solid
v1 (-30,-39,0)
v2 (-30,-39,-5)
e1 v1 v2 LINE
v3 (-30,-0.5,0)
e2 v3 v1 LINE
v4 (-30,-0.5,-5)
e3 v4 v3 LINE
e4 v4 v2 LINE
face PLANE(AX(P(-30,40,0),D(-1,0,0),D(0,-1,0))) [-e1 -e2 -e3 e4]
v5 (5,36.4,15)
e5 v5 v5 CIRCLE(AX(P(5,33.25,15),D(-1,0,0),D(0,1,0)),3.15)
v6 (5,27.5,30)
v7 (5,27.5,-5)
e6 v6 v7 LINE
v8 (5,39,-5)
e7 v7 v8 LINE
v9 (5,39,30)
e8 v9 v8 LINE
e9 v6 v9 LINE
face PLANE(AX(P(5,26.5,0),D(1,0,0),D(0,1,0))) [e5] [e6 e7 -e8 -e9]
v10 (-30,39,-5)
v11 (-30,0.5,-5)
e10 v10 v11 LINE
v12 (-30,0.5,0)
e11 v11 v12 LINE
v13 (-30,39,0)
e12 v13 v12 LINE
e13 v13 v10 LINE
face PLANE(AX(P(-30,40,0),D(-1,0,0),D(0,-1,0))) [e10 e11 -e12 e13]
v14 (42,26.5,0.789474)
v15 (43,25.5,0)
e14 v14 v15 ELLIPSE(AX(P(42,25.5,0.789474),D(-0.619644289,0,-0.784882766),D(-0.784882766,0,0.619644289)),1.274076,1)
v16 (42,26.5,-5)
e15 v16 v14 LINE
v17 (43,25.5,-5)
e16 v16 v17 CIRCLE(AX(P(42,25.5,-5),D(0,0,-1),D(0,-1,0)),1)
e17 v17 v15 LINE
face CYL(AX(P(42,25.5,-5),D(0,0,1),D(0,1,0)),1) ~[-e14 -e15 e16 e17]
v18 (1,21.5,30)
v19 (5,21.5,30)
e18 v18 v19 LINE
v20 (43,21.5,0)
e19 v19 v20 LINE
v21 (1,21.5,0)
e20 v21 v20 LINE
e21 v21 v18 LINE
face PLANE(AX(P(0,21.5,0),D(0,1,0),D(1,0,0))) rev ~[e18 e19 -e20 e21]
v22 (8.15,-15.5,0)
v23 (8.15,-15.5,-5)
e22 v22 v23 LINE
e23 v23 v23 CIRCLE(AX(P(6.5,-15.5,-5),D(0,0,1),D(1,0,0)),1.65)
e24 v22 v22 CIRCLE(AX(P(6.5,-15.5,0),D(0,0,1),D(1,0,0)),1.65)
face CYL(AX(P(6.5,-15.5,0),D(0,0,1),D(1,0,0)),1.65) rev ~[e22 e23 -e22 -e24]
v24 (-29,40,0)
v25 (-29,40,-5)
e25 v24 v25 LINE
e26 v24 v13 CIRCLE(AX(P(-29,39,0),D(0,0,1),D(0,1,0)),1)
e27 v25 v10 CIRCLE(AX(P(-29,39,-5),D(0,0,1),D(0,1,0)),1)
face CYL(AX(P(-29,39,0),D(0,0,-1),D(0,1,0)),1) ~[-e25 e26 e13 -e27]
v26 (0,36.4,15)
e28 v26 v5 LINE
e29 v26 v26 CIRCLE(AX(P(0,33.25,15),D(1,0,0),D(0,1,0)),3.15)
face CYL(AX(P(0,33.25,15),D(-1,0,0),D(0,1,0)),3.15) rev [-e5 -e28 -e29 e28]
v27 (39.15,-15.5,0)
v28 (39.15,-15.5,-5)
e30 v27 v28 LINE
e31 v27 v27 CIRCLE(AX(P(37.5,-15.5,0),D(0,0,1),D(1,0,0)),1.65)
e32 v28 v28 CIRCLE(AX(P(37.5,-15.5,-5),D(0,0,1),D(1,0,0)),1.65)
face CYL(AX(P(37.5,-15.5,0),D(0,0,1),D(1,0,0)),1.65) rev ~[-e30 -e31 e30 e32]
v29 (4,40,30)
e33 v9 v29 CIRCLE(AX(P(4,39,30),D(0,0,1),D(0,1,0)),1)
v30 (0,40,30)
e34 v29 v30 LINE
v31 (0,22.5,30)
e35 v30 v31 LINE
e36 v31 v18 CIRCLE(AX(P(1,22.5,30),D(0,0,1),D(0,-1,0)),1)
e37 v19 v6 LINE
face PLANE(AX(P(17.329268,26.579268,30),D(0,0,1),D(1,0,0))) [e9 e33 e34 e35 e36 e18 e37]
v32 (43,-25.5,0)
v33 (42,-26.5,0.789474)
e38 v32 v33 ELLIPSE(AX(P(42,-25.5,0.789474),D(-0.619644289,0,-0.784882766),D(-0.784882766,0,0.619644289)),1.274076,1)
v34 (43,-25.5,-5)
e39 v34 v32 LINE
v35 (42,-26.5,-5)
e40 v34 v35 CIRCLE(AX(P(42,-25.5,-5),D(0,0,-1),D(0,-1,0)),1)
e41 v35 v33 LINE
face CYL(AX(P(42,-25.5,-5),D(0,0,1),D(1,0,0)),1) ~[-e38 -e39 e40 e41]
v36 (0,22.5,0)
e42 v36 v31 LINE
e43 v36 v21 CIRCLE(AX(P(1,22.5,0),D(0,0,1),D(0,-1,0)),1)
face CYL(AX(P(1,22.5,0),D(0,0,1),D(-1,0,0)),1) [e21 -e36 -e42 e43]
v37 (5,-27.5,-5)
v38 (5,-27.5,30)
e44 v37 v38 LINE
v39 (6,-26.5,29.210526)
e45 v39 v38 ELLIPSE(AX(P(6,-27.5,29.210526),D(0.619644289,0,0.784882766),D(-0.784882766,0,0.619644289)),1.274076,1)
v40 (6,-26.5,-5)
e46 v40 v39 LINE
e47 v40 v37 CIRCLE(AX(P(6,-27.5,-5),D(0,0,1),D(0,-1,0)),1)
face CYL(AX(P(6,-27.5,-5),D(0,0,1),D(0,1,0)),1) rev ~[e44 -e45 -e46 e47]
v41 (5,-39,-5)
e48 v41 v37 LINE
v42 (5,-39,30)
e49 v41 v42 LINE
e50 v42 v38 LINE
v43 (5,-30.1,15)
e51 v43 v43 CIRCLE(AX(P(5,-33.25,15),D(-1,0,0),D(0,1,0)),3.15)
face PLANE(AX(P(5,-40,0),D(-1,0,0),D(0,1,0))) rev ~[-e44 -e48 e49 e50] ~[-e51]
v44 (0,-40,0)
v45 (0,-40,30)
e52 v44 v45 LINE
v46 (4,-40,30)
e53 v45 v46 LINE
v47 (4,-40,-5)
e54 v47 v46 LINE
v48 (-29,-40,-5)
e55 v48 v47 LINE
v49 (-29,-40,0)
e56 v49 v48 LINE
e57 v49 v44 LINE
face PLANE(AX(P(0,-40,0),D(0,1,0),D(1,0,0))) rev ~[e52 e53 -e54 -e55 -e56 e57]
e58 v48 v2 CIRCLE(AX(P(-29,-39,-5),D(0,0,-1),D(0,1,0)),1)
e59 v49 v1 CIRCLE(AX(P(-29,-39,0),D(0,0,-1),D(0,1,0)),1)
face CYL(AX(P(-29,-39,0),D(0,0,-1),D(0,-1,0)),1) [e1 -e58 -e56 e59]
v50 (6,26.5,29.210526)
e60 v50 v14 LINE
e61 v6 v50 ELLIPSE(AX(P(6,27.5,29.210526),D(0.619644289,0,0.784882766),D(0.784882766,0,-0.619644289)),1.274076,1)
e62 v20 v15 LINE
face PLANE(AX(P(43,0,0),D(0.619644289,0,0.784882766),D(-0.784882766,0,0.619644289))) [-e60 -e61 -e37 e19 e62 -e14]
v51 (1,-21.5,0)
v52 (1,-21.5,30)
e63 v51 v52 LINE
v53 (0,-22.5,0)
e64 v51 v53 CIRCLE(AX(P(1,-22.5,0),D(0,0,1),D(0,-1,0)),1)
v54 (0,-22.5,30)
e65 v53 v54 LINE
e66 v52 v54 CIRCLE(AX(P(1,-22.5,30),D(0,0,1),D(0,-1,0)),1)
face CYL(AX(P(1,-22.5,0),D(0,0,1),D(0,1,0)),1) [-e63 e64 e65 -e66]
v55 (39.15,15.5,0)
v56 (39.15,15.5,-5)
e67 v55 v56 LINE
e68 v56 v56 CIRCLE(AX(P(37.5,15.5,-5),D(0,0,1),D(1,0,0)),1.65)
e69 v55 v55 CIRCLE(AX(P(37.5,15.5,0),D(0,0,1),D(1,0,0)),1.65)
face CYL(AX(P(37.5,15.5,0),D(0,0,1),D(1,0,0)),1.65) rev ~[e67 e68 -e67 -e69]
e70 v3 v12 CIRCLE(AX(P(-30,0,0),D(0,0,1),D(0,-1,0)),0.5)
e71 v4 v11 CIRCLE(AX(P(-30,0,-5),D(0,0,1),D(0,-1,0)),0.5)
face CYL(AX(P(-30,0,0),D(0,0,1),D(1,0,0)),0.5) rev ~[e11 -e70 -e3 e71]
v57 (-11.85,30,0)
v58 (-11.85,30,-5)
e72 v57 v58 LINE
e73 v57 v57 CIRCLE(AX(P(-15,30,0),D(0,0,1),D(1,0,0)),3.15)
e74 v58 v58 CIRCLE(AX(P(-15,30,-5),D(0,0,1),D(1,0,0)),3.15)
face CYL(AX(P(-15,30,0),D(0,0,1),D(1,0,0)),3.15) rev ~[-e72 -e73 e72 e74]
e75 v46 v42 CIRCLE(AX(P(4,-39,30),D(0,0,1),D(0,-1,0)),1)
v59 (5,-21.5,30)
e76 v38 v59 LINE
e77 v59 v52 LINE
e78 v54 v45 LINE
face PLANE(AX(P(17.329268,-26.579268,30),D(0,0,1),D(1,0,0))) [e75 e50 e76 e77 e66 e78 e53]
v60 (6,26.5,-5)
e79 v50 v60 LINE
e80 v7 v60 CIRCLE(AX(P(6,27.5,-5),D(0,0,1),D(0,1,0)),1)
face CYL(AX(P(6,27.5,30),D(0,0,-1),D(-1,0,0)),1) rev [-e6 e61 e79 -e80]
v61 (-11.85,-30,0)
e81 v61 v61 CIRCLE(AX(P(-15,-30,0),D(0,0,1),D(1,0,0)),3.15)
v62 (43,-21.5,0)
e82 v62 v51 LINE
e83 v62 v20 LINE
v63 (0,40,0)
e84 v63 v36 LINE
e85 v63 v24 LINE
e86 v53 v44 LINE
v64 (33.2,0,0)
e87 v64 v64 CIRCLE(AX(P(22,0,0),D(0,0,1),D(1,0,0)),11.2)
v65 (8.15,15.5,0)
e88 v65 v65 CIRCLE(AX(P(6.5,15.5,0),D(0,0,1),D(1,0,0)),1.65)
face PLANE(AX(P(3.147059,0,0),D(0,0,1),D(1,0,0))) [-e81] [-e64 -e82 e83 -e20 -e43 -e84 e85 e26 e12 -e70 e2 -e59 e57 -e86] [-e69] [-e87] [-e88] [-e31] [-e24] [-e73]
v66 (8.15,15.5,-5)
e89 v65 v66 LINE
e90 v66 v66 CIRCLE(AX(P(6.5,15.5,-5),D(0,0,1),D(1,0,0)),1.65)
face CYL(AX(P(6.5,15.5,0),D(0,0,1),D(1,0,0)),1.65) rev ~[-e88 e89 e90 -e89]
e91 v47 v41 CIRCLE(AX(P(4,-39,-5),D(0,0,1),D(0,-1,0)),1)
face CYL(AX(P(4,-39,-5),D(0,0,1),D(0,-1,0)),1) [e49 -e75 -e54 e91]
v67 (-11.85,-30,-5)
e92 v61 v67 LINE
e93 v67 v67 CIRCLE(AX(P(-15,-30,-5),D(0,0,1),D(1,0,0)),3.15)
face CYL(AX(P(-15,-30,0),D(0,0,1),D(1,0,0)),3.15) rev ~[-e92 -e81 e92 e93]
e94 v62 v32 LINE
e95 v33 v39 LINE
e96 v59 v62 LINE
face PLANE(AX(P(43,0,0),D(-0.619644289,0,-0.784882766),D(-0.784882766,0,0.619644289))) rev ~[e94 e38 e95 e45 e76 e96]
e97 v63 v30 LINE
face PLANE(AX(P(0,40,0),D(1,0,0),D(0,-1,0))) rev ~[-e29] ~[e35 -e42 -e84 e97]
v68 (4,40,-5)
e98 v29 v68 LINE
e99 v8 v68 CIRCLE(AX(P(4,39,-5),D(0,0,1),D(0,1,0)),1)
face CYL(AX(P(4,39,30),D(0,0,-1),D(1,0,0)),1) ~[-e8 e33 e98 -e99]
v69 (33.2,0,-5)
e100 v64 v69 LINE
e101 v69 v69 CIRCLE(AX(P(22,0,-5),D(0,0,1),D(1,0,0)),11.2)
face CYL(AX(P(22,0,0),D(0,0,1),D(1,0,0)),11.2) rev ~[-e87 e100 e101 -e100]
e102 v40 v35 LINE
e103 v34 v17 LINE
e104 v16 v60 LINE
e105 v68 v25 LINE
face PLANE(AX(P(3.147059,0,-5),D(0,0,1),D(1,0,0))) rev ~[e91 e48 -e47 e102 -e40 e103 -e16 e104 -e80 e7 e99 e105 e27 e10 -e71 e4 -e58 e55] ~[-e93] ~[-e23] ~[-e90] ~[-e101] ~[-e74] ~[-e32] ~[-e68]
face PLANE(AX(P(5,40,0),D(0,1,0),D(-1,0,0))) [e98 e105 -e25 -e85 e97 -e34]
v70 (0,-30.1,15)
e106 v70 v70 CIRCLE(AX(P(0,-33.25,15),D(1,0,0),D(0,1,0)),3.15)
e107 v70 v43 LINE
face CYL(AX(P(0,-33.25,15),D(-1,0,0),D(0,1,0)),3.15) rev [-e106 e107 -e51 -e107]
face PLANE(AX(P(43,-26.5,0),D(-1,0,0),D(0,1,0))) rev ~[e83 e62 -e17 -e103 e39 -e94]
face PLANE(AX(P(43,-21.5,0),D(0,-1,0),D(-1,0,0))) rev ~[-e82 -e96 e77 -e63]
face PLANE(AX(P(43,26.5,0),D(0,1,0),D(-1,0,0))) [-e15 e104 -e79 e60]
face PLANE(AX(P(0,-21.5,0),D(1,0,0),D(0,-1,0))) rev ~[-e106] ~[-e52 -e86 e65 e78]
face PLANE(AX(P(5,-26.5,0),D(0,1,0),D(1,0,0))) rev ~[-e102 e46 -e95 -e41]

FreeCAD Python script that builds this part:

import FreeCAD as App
import Part
import Sketcher


def edges_at(feature, points):
    """Names of the edges that pass closest to the given points."""
    edges = feature.Shape.Edges
    near = lambda p: min(range(len(edges)), key=lambda i: edges[i].distToShape(Part.Vertex(*p))[0])
    return sorted({f"Edge{near(p) + 1}" for p in points})

doc = App.newDocument("Part")
body = doc.addObject("PartDesign::Body", "Body")

# Sketch on XY plane
sketch1 = doc.addObject("Sketcher::SketchObject", "Sketch")
body.addObject(sketch1)
sketch1.AttachmentSupport = (doc.XY_Plane, [""])
sketch1.MapMode = "FlatFace"
sketch1.addGeometry([
    Part.LineSegment(App.Vector(-30, 40, 0), App.Vector(-30, -40, 0)),  # 0
    Part.LineSegment(App.Vector(-30, -40, 0), App.Vector(5, -40, 0)),  # 1
    Part.LineSegment(App.Vector(5, -40, 0), App.Vector(5, -26.5, 0)),  # 2
    Part.LineSegment(App.Vector(5, -26.5, 0), App.Vector(43, -26.5, 0)),  # 3
    Part.LineSegment(App.Vector(43, -26.5, 0), App.Vector(43, 26.5, 0)),  # 4
    Part.LineSegment(App.Vector(43, 26.5, 0), App.Vector(5, 26.5, 0)),  # 5
    Part.LineSegment(App.Vector(5, 26.5, 0), App.Vector(5, 40, 0)),  # 6
    Part.LineSegment(App.Vector(5, 40, 0), App.Vector(-30, 40, 0)),  # 7
    Part.Circle(App.Vector(-15, -30, 0), App.Vector(0, 0, 1), 3.1),  # 8
    Part.Circle(App.Vector(6.5, -15.5, 0), App.Vector(0, 0, 1), 1.6),  # 9
    Part.Circle(App.Vector(37.5, -15.5, 0), App.Vector(0, 0, 1), 1.6),  # 10
    Part.Circle(App.Vector(6.5, 15.5, 0), App.Vector(0, 0, 1), 1.6),  # 11
    Part.Circle(App.Vector(-15, 30, 0), App.Vector(0, 0, 1), 3.1),  # 12
    Part.Circle(App.Vector(22, 0, 0), App.Vector(0, 0, 1), 11.2),  # 13
    Part.Circle(App.Vector(37.5, 15.5, 0), App.Vector(0, 0, 1), 1.6),  # 14
], False)
sketch1.addConstraint([
    Sketcher.Constraint("Coincident", 0, 2, 1, 1),
    Sketcher.Constraint("Coincident", 1, 2, 2, 1),
    Sketcher.Constraint("Coincident", 2, 2, 3, 1),
    Sketcher.Constraint("Coincident", 3, 2, 4, 1),
    Sketcher.Constraint("Coincident", 4, 2, 5, 1),
    Sketcher.Constraint("Coincident", 5, 2, 6, 1),
    Sketcher.Constraint("Coincident", 6, 2, 7, 1),
    Sketcher.Constraint("Coincident", 7, 2, 0, 1),
    Sketcher.Constraint("Vertical", 0),
    Sketcher.Constraint("Horizontal", 1),
    Sketcher.Constraint("Vertical", 2),
    Sketcher.Constraint("Horizontal", 3),
    Sketcher.Constraint("Vertical", 4),
    Sketcher.Constraint("Horizontal", 5),
    Sketcher.Constraint("Vertical", 6),
    Sketcher.Constraint("Horizontal", 7),
    Sketcher.Constraint("Equal", 9, 10),
    Sketcher.Constraint("Equal", 10, 11),
    Sketcher.Constraint("Equal", 8, 12),
    Sketcher.Constraint("Equal", 11, 14),
    Sketcher.Constraint("Symmetric", 9, 3, 11, 3, -1),
    Sketcher.Constraint("Symmetric", 8, 3, 12, 3, -1),
    Sketcher.Constraint("Symmetric", 10, 3, 14, 3, -1),
    Sketcher.Constraint("Symmetric", 2, 2, 5, 2, -1),
    Sketcher.Constraint("PointOnObject", 13, 3, -1),
    Sketcher.Constraint("Horizontal", 9, 3, 10, 3),
    Sketcher.Constraint("Equal", 2, 6),
    Sketcher.Constraint("Diameter", 8, 6.3),
    Sketcher.Constraint("Diameter", 9, 3.3),
    Sketcher.Constraint("Diameter", 13, 22.4),
    Sketcher.Constraint("DistanceX", 1, 1, 1, 2, 35.0),
    Sketcher.Constraint("DistanceX", 3, 1, 3, 2, 38.0),
    Sketcher.Constraint("DistanceY", 0, 2, 0, 1, 80.0),
    Sketcher.Constraint("DistanceY", 4, 1, 4, 2, 53.0),
    Sketcher.Constraint("DistanceX", 8, 3, -1, 1, 15.0),
    Sketcher.Constraint("DistanceY", 8, 3, -1, 1, 30.0),
    Sketcher.Constraint("DistanceX", -1, 1, 13, 3, 22.0),
    Sketcher.Constraint("DistanceX", 0, 2, -1, 1, 30.0),
    Sketcher.Constraint("DistanceX", 9, 3, 10, 3, 31.0),
    Sketcher.Constraint("DistanceY", 9, 3, 11, 3, 31.0),
    Sketcher.Constraint("DistanceX", -1, 1, 9, 3, 6.5),
])
pad1 = doc.addObject("PartDesign::Pad", "Pad")
body.addObject(pad1)
pad1.Profile = sketch1
pad1.Length = 5
pad1.Reversed = True

# Sketch on XY plane
sketch2 = doc.addObject("Sketcher::SketchObject", "Sketch001")
body.addObject(sketch2)
sketch2.AttachmentSupport = (doc.XY_Plane, [""])
sketch2.MapMode = "FlatFace"
sketch2.addGeometry([
    Part.LineSegment(App.Vector(0, -40, 0), App.Vector(5, -40, 0)),  # 0
    Part.LineSegment(App.Vector(5, -40, 0), App.Vector(5, -26, 0)),  # 1
    Part.LineSegment(App.Vector(5, -26, 0), App.Vector(43, -26, 0)),  # 2
    Part.LineSegment(App.Vector(43, -26, 0), App.Vector(43, -22, 0)),  # 3
    Part.LineSegment(App.Vector(43, -22, 0), App.Vector(0, -22, 0)),  # 4
    Part.LineSegment(App.Vector(0, -22, 0), App.Vector(0, -40, 0)),  # 5
    Part.LineSegment(App.Vector(0, 22, 0), App.Vector(43, 22, 0)),  # 6
    Part.LineSegment(App.Vector(43, 22, 0), App.Vector(43, 26, 0)),  # 7
    Part.LineSegment(App.Vector(43, 26, 0), App.Vector(5, 26, 0)),  # 8
    Part.LineSegment(App.Vector(5, 26, 0), App.Vector(5, 40, 0)),  # 9
    Part.LineSegment(App.Vector(5, 40, 0), App.Vector(0, 40, 0)),  # 10
    Part.LineSegment(App.Vector(0, 40, 0), App.Vector(0, 22, 0)),  # 11
], False)
sketch2.addConstraint([
    Sketcher.Constraint("Coincident", 0, 2, 1, 1),
    Sketcher.Constraint("Coincident", 1, 2, 2, 1),
    Sketcher.Constraint("Coincident", 2, 2, 3, 1),
    Sketcher.Constraint("Coincident", 3, 2, 4, 1),
    Sketcher.Constraint("Coincident", 4, 2, 5, 1),
    Sketcher.Constraint("Coincident", 5, 2, 0, 1),
    Sketcher.Constraint("Coincident", 6, 2, 7, 1),
    Sketcher.Constraint("Coincident", 7, 2, 8, 1),
    Sketcher.Constraint("Coincident", 8, 2, 9, 1),
    Sketcher.Constraint("Coincident", 9, 2, 10, 1),
    Sketcher.Constraint("Coincident", 10, 2, 11, 1),
    Sketcher.Constraint("Coincident", 11, 2, 6, 1),
    Sketcher.Constraint("Horizontal", 0),
    Sketcher.Constraint("Vertical", 1),
    Sketcher.Constraint("Horizontal", 2),
    Sketcher.Constraint("Vertical", 3),
    Sketcher.Constraint("Horizontal", 4),
    Sketcher.Constraint("Vertical", 5),
    Sketcher.Constraint("Horizontal", 6),
    Sketcher.Constraint("Vertical", 7),
    Sketcher.Constraint("Horizontal", 8),
    Sketcher.Constraint("Vertical", 9),
    Sketcher.Constraint("Horizontal", 10),
    Sketcher.Constraint("Vertical", 11),
    Sketcher.Constraint("Symmetric", 5, 2, 10, 2, -1, 1),
    Sketcher.Constraint("Symmetric", 3, 2, 6, 2, -1),
    Sketcher.Constraint("Symmetric", 1, 2, 8, 2, -1),
    Sketcher.Constraint("PointOnObject", 4, 2, -2),
    Sketcher.Constraint("Equal", 10, 3),
    Sketcher.Constraint("DistanceX", 0, 1, 0, 2, 5.0),
    Sketcher.Constraint("DistanceX", 2, 1, 2, 2, 38.0),
    Sketcher.Constraint("DistanceY", 1, 1, 1, 2, 13.5),
    Sketcher.Constraint("DistanceY", 0, 2, -1, 1, 40.0),
])
pad2 = doc.addObject("PartDesign::Pad", "Pad001")
body.addObject(pad2)
pad2.Profile = sketch2
pad2.Length = 30

# Sketch on YZ plane
sketch3 = doc.addObject("Sketcher::SketchObject", "Sketch002")
body.addObject(sketch3)
sketch3.AttachmentSupport = (doc.YZ_Plane, [""])
sketch3.MapMode = "FlatFace"
sketch3.addGeometry([
    Part.Circle(App.Vector(-33.2, 15, 0), App.Vector(0, 0, 1), 3.1),
    Part.Circle(App.Vector(33.2, 15, 0), App.Vector(0, 0, 1), 3.1),
], False)
sketch3.addConstraint([
    Sketcher.Constraint("Equal", 0, 1),
    Sketcher.Constraint("Symmetric", 0, 3, 1, 3, -2),
    Sketcher.Constraint("Diameter", 0, 6.3),
    Sketcher.Constraint("DistanceY", -1, 1, 0, 3, 15.0),
    Sketcher.Constraint("DistanceX", 0, 3, 1, 3, 66.5),
])
pocket1 = doc.addObject("PartDesign::Pocket", "Pocket")
body.addObject(pocket1)
pocket1.Profile = sketch3
pocket1.Type = "ThroughAll"
pocket1.Reversed = True

# Sketch on XZ plane
sketch4 = doc.addObject("Sketcher::SketchObject", "Sketch003")
body.addObject(sketch4)
sketch4.AttachmentSupport = (doc.XZ_Plane, [""])
sketch4.MapMode = "FlatFace"
sketch4.addGeometry([
    Part.LineSegment(App.Vector(43, 30, 0), App.Vector(5, 30, 0)),
    Part.LineSegment(App.Vector(5, 30, 0), App.Vector(43, 0, 0)),
    Part.LineSegment(App.Vector(43, 0, 0), App.Vector(43, 30, 0)),
], False)
sketch4.addConstraint([
    Sketcher.Constraint("Coincident", 0, 2, 1, 1),
    Sketcher.Constraint("Coincident", 1, 2, 2, 1),
    Sketcher.Constraint("Coincident", 2, 2, 0, 1),
    Sketcher.Constraint("Horizontal", 0),
    Sketcher.Constraint("Vertical", 2),
    Sketcher.Constraint("PointOnObject", 1, 2, -1),
    Sketcher.Constraint("DistanceX", 0, 2, 0, 1, 38.0),
    Sketcher.Constraint("DistanceY", 2, 1, 2, 2, 30.0),
    Sketcher.Constraint("DistanceX", -1, 1, 0, 2, 5.0),
])
pocket2 = doc.addObject("PartDesign::Pocket", "Pocket001")
body.addObject(pocket2)
pocket2.Profile = sketch4
pocket2.Type = "ThroughAll"
pocket2.Midplane = True
doc.recompute()

fillet = doc.addObject("PartDesign::Fillet", "Fillet")
body.addObject(fillet)
fillet.Base = (pocket2, edges_at(pocket2, [
    (5, -26.5, 12.5),
    (5, 26.5, 12.5),
    (43, 26.5, -2.5),
    (43, -26.5, -2.5),
    (0, -21.5, 15),
    (0, 21.5, 15),
    (5, -40, 12.5),
    (5, 40, 12.5),
    (-30, 40, -2.5),
    (-30, -40, -2.5),
]))
fillet.Radius = 1

# Sketch on XY plane
sketch5 = doc.addObject("Sketcher::SketchObject", "Sketch004")
body.addObject(sketch5)
sketch5.AttachmentSupport = (doc.XY_Plane, [""])
sketch5.MapMode = "FlatFace"
sketch5.addGeometry(Part.Circle(App.Vector(-30, 0, 0), App.Vector(0, 0, 1), 0.5), False)
sketch5.addConstraint([
    Sketcher.Constraint("PointOnObject", 0, 3, -1),
    Sketcher.Constraint("Diameter", 0, 1.0),
    Sketcher.Constraint("DistanceX", 0, 3, -1, 1, 30.0),
])
pocket3 = doc.addObject("PartDesign::Pocket", "Pocket002")
body.addObject(pocket3)
pocket3.Profile = sketch5
pocket3.Type = "ThroughAll"
pocket3.Midplane = True

doc.recompute()
